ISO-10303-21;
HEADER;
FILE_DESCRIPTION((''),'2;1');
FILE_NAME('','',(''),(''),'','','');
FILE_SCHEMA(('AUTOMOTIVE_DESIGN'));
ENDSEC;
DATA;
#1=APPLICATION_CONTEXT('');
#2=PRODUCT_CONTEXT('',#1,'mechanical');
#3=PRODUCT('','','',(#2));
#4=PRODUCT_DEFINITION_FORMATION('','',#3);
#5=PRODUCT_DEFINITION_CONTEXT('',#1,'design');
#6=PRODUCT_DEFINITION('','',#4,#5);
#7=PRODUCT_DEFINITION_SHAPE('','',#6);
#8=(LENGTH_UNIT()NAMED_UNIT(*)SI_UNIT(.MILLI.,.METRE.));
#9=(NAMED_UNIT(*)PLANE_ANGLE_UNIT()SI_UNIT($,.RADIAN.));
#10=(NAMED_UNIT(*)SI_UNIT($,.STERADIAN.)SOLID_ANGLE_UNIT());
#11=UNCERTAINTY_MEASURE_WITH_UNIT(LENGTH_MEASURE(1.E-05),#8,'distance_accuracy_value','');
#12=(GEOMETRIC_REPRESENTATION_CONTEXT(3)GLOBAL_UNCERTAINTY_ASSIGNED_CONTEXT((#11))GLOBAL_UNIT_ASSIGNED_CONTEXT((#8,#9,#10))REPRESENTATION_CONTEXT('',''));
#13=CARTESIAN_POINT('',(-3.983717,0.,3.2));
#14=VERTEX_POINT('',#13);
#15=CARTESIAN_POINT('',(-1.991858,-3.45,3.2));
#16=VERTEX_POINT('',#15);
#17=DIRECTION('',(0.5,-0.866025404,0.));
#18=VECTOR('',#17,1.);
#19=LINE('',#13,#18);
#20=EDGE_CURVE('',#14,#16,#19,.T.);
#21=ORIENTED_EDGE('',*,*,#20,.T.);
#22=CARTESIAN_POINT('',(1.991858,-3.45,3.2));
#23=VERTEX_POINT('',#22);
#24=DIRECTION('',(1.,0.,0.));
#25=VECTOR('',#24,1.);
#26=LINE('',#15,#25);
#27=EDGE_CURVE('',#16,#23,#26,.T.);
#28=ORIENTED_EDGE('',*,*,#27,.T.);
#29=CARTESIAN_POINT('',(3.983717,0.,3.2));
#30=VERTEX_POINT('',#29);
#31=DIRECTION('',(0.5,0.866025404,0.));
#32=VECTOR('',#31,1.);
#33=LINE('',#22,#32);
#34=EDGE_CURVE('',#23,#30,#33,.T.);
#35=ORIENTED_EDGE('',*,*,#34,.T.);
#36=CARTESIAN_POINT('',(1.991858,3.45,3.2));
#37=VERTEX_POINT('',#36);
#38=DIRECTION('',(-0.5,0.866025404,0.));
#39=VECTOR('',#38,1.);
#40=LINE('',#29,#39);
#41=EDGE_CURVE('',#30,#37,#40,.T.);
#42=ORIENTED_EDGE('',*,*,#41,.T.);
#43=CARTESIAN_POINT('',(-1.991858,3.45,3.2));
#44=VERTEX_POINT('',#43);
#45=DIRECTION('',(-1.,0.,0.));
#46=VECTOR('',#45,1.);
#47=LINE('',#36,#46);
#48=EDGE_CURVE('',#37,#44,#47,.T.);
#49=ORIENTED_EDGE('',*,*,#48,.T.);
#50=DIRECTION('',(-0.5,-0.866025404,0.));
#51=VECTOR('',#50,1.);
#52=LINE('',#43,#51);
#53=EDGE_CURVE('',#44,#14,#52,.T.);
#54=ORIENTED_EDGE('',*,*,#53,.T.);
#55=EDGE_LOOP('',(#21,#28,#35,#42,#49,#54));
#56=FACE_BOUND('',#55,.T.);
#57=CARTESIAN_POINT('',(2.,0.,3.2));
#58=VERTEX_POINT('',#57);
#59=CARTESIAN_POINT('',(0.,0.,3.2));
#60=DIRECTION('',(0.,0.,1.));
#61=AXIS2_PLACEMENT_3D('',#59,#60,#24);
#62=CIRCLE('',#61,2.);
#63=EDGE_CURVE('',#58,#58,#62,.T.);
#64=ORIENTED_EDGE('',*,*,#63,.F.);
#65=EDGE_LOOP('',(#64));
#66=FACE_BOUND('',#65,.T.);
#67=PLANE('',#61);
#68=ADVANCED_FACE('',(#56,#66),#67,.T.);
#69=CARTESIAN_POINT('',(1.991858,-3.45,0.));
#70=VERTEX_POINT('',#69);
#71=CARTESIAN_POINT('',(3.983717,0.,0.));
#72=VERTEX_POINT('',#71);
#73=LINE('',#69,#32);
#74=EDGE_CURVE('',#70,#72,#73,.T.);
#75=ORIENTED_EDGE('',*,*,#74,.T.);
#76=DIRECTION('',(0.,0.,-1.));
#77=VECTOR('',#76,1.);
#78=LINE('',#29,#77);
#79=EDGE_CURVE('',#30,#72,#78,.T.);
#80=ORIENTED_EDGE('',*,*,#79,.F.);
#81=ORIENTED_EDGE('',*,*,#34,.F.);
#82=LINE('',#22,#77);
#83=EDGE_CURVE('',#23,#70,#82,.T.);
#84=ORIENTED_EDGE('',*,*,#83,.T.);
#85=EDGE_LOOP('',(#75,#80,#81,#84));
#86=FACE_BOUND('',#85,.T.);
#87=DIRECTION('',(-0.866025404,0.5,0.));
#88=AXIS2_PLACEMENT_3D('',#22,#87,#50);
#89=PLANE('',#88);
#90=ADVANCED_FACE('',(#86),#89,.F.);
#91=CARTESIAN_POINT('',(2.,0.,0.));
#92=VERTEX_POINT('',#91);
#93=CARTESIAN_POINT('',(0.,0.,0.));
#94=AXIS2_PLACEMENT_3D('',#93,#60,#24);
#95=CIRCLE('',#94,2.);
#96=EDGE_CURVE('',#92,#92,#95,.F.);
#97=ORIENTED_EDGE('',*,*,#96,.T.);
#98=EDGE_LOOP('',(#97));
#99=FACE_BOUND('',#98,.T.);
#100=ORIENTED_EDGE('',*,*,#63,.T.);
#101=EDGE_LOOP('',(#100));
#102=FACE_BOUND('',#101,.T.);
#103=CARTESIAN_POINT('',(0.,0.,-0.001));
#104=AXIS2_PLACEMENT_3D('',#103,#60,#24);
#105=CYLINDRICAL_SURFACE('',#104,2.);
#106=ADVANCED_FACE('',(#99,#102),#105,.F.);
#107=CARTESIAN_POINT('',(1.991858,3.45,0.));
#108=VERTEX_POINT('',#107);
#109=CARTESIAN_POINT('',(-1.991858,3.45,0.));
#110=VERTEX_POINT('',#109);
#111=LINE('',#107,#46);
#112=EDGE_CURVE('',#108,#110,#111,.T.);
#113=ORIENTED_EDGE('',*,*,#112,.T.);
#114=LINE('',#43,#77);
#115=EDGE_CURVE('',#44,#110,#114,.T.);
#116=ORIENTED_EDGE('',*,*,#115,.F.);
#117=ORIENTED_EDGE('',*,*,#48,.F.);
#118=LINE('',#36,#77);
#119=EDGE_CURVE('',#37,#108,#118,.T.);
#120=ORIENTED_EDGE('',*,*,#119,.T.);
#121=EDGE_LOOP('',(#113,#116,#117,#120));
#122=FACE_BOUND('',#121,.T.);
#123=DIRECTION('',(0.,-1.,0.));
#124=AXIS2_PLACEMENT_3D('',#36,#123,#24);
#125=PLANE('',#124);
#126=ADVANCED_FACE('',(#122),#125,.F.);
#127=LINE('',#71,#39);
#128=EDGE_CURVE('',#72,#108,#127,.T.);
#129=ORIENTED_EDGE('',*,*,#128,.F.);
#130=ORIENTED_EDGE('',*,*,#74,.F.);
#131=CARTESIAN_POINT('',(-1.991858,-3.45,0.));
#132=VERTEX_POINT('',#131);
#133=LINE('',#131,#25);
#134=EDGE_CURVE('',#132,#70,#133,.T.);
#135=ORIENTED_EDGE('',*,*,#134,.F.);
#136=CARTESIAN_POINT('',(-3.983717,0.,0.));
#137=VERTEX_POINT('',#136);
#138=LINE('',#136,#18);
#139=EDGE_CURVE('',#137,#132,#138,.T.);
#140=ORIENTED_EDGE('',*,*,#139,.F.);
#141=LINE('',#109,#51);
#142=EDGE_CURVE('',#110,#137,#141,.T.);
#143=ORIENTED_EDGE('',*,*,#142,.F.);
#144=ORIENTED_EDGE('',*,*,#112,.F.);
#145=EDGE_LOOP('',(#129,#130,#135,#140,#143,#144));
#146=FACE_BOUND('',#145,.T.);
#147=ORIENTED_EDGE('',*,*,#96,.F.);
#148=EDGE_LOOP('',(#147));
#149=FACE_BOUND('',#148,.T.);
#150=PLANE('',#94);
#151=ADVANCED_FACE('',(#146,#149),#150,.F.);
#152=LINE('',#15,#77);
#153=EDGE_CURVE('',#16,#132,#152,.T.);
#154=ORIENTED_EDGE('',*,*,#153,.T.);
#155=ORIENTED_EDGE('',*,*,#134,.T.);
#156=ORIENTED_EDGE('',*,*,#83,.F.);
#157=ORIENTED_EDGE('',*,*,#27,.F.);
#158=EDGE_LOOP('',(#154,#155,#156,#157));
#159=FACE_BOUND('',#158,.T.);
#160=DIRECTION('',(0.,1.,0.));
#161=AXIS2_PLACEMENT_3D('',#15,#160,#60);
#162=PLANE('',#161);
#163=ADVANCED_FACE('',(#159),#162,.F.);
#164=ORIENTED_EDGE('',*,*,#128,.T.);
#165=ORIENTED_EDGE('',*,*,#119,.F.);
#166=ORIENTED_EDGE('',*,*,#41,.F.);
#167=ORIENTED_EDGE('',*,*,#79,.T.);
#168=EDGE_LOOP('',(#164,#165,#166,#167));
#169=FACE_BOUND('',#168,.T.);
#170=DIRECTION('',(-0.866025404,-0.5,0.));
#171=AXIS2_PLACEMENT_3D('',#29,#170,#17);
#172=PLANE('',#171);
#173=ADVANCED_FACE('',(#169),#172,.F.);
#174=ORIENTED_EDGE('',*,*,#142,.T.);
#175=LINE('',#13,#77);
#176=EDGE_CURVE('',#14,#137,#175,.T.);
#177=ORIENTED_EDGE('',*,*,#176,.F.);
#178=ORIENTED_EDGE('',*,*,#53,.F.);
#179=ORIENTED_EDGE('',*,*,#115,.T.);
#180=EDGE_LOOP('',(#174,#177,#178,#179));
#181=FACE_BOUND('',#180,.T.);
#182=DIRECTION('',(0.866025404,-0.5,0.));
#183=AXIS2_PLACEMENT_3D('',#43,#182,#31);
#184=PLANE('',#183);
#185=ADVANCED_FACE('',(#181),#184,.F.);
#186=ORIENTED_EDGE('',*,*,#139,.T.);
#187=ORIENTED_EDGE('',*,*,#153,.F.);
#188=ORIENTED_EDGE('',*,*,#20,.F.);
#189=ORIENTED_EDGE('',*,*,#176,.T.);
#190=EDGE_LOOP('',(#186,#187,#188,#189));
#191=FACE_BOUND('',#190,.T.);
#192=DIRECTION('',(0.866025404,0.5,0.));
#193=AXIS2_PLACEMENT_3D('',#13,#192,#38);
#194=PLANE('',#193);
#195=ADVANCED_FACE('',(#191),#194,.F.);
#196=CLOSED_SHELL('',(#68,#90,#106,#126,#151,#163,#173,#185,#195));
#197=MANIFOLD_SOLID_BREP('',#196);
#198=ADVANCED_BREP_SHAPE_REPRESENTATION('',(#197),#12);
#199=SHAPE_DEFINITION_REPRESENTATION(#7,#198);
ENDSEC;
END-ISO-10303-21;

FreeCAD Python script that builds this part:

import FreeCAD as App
import Part
import Sketcher
Q = App.Units.Quantity


def add_polygon(sketch, points):
    """Adds a closed chain of lines whose ends are joined by coincident constraints."""
    first, n = sketch.GeometryCount, len(points)
    for a, b in zip(points, points[1:] + points[:1]):
        sketch.addGeometry(Part.LineSegment(App.Vector(*a, 0), App.Vector(*b, 0)), False)
    for i in range(n):
        sketch.addConstraint(Sketcher.Constraint("Coincident", first + i, 2, first + (i + 1) % n, 1))

doc = App.newDocument("Part")
body = doc.addObject("PartDesign::Body", "Body")

sketch1 = body.newObject("Sketcher::SketchObject", "Sketch")
sketch1.AttachmentSupport = (doc.getObject("XY_Plane"), [""])
sketch1.MapMode = "FlatFace"
add_polygon(sketch1, [(2, -3.5), (4, 0), (2, 3.5), (-2, 3.5), (-4, 0), (-2, -3.5)])
sketch1.addConstraint([
    Sketcher.Constraint("Horizontal", 2),
    Sketcher.Constraint("Horizontal", 5),
    Sketcher.Constraint("Symmetric", 0, 2, 3, 2, -1, 1),
    Sketcher.Constraint("Symmetric", 1, 2, 4, 2, -1, 1),
    Sketcher.Constraint("PointOnObject", 0, 2, -1),
    Sketcher.Constraint("Parallel", 0, 3),
    Sketcher.Constraint("Vertical", 2, 2, 4, 2),
    Sketcher.Constraint("Angle", 0, Q("60 deg")),
    Sketcher.Constraint("DistanceY", 4, 2, 2, 2, 6.9),
    Sketcher.Constraint("DistanceX", 2, 2, 2, 1, 3.983717),
])
pad1 = body.newObject("PartDesign::Pad", "Pad")
pad1.Profile = sketch1
pad1.Length = 3.2

sketch2 = body.newObject("Sketcher::SketchObject", "Sketch001")
sketch2.AttachmentSupport = (doc.getObject("XY_Plane"), [""])
sketch2.MapMode = "FlatFace"
sketch2.AttachmentOffset = App.Placement(App.Vector(0, 0, 3.2), App.Rotation())
sketch2.addGeometry(Part.Circle(App.Vector(0, 0, 0), App.Vector(0, 0, 1), 2), False)
sketch2.addConstraint([
    Sketcher.Constraint("Coincident", 0, 3, -1, 1),
    Sketcher.Constraint("Diameter", 0, 4.0),
])
pocket1 = body.newObject("PartDesign::Pocket", "Pocket")
pocket1.Profile = sketch2
pocket1.Type = "UpToFirst"

doc.recompute()
